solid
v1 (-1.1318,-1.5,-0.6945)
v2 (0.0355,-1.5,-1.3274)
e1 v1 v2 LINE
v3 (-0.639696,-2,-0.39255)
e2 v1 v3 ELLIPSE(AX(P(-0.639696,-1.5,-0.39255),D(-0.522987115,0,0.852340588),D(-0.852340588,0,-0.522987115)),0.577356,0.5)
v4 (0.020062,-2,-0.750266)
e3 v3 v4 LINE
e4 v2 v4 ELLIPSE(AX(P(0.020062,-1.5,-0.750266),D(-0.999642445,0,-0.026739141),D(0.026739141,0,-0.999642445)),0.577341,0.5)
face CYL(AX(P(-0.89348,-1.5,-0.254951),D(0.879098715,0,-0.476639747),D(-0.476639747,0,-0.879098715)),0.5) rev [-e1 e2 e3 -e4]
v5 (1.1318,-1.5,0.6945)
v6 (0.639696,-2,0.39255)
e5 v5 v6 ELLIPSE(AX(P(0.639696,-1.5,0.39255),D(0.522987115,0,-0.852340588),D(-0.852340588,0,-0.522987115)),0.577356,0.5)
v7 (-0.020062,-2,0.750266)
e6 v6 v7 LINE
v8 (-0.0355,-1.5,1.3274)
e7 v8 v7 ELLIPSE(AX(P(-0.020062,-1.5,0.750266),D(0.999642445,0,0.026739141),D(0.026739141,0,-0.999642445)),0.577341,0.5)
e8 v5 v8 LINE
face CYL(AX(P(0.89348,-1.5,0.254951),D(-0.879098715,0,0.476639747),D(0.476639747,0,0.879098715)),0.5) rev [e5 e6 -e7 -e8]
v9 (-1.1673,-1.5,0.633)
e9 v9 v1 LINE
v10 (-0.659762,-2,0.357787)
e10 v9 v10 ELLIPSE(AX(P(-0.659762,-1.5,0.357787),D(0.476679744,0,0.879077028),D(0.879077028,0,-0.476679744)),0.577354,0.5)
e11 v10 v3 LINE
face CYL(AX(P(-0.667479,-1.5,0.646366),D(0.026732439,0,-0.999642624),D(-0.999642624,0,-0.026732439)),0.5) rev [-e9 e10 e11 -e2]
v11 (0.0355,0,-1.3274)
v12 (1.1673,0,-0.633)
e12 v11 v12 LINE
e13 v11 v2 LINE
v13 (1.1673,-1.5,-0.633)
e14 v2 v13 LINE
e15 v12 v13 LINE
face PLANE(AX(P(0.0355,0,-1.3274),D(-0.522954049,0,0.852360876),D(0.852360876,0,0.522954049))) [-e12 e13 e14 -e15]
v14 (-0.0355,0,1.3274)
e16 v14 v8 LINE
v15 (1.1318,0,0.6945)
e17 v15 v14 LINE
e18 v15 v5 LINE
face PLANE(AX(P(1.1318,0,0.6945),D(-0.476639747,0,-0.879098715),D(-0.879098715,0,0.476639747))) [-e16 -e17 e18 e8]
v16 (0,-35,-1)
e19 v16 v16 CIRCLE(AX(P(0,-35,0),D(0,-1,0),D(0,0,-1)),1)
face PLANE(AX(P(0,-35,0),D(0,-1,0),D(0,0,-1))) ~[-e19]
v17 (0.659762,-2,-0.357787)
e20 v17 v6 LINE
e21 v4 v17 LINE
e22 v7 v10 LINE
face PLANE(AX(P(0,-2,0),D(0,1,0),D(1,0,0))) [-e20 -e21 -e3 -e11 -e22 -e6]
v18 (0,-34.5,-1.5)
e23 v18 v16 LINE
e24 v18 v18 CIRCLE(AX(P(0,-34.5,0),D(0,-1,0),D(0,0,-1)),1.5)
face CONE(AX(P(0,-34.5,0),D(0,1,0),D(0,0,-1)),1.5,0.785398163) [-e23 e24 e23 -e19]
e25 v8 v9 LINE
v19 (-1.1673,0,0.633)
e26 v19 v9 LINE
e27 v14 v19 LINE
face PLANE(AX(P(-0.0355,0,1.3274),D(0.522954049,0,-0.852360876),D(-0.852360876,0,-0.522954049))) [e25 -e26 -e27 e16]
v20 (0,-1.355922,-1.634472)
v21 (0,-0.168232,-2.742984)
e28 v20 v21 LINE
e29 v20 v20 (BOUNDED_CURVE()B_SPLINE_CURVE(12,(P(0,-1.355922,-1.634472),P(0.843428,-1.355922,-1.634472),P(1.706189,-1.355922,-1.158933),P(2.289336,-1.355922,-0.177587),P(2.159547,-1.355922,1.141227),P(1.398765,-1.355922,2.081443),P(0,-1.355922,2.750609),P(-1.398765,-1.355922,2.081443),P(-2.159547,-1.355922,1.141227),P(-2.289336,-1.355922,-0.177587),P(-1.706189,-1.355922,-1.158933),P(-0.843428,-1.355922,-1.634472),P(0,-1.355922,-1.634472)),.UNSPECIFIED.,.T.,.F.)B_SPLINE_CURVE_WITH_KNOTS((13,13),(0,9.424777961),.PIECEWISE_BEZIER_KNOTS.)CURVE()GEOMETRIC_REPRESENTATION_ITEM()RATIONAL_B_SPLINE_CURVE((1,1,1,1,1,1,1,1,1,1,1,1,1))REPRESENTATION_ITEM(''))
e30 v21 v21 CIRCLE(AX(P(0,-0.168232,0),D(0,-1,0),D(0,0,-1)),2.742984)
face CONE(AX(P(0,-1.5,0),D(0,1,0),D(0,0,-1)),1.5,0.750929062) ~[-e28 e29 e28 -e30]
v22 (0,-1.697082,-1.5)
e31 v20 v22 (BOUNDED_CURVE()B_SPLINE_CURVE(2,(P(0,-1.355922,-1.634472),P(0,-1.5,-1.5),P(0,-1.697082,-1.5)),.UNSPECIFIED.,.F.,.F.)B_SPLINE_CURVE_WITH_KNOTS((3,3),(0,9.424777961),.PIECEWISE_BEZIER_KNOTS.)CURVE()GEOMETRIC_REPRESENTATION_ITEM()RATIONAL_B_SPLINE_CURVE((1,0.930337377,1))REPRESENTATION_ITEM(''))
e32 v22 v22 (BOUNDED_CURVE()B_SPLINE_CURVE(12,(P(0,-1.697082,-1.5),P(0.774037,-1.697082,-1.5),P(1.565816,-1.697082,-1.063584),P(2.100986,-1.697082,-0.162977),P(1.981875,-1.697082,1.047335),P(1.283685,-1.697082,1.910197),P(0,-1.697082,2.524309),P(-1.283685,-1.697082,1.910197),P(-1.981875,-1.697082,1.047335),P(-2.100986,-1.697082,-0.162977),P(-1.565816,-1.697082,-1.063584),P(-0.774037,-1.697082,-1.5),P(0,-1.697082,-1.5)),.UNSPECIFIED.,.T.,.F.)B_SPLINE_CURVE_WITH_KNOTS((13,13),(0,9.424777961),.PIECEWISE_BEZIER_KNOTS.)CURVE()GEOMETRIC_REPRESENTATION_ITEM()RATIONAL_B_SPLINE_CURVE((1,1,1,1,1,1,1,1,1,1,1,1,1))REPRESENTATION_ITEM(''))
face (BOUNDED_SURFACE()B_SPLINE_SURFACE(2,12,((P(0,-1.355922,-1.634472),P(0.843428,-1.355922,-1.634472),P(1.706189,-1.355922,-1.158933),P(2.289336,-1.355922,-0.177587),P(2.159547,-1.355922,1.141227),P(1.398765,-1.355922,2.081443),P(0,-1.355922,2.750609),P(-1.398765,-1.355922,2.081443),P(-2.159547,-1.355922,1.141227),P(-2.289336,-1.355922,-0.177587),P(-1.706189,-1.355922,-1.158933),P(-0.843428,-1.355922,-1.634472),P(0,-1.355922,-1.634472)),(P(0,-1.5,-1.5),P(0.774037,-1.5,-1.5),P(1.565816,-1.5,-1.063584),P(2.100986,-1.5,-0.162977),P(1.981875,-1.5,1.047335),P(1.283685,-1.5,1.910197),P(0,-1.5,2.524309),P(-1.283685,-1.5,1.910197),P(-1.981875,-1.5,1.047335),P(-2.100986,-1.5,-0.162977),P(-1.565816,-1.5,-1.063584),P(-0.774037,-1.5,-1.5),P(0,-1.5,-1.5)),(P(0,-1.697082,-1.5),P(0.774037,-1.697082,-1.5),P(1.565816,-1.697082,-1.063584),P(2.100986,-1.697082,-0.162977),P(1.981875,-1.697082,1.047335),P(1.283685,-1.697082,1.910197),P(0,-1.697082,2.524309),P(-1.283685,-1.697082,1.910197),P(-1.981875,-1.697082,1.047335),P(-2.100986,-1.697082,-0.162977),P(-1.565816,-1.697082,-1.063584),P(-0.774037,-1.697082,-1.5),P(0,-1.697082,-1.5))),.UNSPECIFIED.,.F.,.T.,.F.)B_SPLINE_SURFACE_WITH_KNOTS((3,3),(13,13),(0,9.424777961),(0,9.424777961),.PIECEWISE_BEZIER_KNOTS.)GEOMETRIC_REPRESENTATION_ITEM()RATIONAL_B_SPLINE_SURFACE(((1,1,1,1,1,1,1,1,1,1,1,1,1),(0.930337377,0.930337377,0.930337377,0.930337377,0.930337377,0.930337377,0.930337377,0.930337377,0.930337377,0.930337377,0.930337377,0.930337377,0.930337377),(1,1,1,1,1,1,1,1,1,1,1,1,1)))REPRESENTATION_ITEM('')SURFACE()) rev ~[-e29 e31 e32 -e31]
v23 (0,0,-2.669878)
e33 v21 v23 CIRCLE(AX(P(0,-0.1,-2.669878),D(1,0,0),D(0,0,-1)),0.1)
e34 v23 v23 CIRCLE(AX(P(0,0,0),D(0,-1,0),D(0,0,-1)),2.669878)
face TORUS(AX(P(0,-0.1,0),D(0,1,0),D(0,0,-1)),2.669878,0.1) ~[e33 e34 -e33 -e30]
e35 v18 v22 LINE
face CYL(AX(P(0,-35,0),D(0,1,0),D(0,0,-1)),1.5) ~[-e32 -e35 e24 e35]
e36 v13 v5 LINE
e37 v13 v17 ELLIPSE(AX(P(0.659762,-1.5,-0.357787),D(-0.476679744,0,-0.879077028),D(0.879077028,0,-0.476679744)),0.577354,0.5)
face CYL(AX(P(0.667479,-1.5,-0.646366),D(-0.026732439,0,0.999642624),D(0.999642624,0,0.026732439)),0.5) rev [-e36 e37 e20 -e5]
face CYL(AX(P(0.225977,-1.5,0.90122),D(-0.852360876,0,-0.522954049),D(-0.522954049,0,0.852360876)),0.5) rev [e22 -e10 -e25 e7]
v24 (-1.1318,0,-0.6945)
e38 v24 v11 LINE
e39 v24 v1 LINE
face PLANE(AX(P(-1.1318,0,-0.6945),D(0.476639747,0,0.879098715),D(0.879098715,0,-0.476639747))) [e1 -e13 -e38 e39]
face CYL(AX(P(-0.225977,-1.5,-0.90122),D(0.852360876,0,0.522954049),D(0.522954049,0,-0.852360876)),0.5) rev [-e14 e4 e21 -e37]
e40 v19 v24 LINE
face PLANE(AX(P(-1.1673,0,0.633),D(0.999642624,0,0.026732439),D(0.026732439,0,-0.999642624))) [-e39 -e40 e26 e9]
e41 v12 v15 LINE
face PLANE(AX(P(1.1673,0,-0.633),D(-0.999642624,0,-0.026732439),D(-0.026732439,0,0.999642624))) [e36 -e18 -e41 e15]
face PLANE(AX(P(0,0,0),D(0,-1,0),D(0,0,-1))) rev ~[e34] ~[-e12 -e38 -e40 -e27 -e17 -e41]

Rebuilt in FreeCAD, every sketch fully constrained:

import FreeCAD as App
import Part
import Sketcher

V = App.Vector
Q = App.Units.Quantity


def edges_at(feature, points):
    """Names of the edges that pass closest to the given points."""
    edges = feature.Shape.Edges
    near = lambda p: min(range(len(edges)), key=lambda i: edges[i].distToShape(Part.Vertex(*p))[0])
    return sorted({f"Edge{near(p) + 1}" for p in points})


def add_polygon(sketch, points):
    """Adds a closed chain of lines whose ends are joined by coincident constraints."""
    first, n = sketch.GeometryCount, len(points)
    for a, b in zip(points, points[1:] + points[:1]):
        sketch.addGeometry(Part.LineSegment(App.Vector(*a, 0), App.Vector(*b, 0)), False)
    for i in range(n):
        sketch.addConstraint(Sketcher.Constraint("Coincident", first + i, 2, first + (i + 1) % n, 1))

doc = App.newDocument("Part")
body = doc.addObject("PartDesign::Body", "Body")

sketch1 = doc.addObject("Sketcher::SketchObject", "Sketch")
body.addObject(sketch1)
sketch1.AttachmentSupport = (doc.YZ_Plane, [""])
sketch1.MapMode = "FlatFace"
add_polygon(sketch1, [(-1.5, -1.5), (0, -2.9), (0, 0), (-35, 0), (-35, -1.5)])
sketch1.addConstraint([
    Sketcher.Constraint("Vertical", 1),
    Sketcher.Constraint("Horizontal", 2),
    Sketcher.Constraint("Vertical", 3),
    Sketcher.Constraint("Horizontal", 4),
    Sketcher.Constraint("Coincident", 1, 2, -1, 1),
    Sketcher.Constraint("DistanceX", 2, 2, 2, 1, Q("35 mm")),
    Sketcher.Constraint("DistanceY", 3, 2, 3, 1, Q("1.5 mm")),
    Sketcher.Constraint("DistanceX", 4, 2, -1, 1, Q("1.5 mm")),
    Sketcher.Constraint("DistanceY", 1, 1, 1, 2, Q("2.9 mm")),
])
revolution = doc.addObject("PartDesign::Revolution", "Revolution")
body.addObject(revolution)
revolution.Profile = sketch1
revolution.ReferenceAxis = (sketch1, ["H_Axis"])
revolution.Angle = 360

sketch2 = doc.addObject("Sketcher::SketchObject", "Sketch001")
body.addObject(sketch2)
sketch2.AttachmentSupport = (doc.XZ_Plane, [""])
sketch2.MapMode = "FlatFace"
add_polygon(sketch2, [(-1.1318, -0.6945), (-1.1673, 0.633), (-0.0355, 1.3274), (1.1318, 0.6945), (1.1673, -0.633), (0.0355, -1.3274)])
sketch2.addConstraint([
    Sketcher.Constraint("Symmetric", 0, 2, 3, 2, -1, 1),
    Sketcher.Constraint("Symmetric", 1, 2, 4, 2, -1, 1),
    Sketcher.Constraint("Symmetric", 2, 2, 5, 2, -1, 1),
    Sketcher.Constraint("Equal", 0, 1),
    Sketcher.Constraint("Equal", 1, 2),
    Sketcher.Constraint("Angle", 1, Q("31.5306 deg")),
    Sketcher.Constraint("Distance", 0, Q("1.328 mm")),
    Sketcher.Constraint("DistanceY", -1, 1, 0, 2, Q("0.633 mm")),
    Sketcher.Constraint("DistanceY", 2, 2, 1, 2, Q("0.633 mm")),
])
pocket1 = doc.addObject("PartDesign::Pocket", "Pocket")
body.addObject(pocket1)
pocket1.Profile = sketch2
pocket1.Length = 2
pocket1.Reversed = True
doc.recompute()

fillet = doc.addObject("PartDesign::Fillet", "Fillet")
body.addObject(fillet)
fillet.Base = (pocket1, edges_at(pocket1, [
    (-1.15, -2, -0.031),
    (-0.601, -2, 0.98),
    (-0.548, -2, -1.011),
    (0.601, -2, -0.98),
    (0.548, -2, 1.011),
    (1.15, -2, 0.031),
]))
fillet.Radius = 0.5
doc.recompute()

fillet2 = doc.addObject("PartDesign::Fillet", "Fillet001")
body.addObject(fillet2)
fillet2.Base = (fillet, edges_at(fillet, [(0, -1.5, 1.5)]))
fillet2.Radius = 0.5
doc.recompute()

fillet3 = doc.addObject("PartDesign::Fillet", "Fillet002")
body.addObject(fillet3)
fillet3.Base = (fillet2, edges_at(fillet2, [(0, 0, 2.9)]))
fillet3.Radius = 0.1
doc.recompute()

chamfer = doc.addObject("PartDesign::Chamfer", "Chamfer")
body.addObject(chamfer)
chamfer.Base = (fillet3, edges_at(fillet3, [(0, -35, 1.5)]))
chamfer.Size = 0.5

doc.recompute()
